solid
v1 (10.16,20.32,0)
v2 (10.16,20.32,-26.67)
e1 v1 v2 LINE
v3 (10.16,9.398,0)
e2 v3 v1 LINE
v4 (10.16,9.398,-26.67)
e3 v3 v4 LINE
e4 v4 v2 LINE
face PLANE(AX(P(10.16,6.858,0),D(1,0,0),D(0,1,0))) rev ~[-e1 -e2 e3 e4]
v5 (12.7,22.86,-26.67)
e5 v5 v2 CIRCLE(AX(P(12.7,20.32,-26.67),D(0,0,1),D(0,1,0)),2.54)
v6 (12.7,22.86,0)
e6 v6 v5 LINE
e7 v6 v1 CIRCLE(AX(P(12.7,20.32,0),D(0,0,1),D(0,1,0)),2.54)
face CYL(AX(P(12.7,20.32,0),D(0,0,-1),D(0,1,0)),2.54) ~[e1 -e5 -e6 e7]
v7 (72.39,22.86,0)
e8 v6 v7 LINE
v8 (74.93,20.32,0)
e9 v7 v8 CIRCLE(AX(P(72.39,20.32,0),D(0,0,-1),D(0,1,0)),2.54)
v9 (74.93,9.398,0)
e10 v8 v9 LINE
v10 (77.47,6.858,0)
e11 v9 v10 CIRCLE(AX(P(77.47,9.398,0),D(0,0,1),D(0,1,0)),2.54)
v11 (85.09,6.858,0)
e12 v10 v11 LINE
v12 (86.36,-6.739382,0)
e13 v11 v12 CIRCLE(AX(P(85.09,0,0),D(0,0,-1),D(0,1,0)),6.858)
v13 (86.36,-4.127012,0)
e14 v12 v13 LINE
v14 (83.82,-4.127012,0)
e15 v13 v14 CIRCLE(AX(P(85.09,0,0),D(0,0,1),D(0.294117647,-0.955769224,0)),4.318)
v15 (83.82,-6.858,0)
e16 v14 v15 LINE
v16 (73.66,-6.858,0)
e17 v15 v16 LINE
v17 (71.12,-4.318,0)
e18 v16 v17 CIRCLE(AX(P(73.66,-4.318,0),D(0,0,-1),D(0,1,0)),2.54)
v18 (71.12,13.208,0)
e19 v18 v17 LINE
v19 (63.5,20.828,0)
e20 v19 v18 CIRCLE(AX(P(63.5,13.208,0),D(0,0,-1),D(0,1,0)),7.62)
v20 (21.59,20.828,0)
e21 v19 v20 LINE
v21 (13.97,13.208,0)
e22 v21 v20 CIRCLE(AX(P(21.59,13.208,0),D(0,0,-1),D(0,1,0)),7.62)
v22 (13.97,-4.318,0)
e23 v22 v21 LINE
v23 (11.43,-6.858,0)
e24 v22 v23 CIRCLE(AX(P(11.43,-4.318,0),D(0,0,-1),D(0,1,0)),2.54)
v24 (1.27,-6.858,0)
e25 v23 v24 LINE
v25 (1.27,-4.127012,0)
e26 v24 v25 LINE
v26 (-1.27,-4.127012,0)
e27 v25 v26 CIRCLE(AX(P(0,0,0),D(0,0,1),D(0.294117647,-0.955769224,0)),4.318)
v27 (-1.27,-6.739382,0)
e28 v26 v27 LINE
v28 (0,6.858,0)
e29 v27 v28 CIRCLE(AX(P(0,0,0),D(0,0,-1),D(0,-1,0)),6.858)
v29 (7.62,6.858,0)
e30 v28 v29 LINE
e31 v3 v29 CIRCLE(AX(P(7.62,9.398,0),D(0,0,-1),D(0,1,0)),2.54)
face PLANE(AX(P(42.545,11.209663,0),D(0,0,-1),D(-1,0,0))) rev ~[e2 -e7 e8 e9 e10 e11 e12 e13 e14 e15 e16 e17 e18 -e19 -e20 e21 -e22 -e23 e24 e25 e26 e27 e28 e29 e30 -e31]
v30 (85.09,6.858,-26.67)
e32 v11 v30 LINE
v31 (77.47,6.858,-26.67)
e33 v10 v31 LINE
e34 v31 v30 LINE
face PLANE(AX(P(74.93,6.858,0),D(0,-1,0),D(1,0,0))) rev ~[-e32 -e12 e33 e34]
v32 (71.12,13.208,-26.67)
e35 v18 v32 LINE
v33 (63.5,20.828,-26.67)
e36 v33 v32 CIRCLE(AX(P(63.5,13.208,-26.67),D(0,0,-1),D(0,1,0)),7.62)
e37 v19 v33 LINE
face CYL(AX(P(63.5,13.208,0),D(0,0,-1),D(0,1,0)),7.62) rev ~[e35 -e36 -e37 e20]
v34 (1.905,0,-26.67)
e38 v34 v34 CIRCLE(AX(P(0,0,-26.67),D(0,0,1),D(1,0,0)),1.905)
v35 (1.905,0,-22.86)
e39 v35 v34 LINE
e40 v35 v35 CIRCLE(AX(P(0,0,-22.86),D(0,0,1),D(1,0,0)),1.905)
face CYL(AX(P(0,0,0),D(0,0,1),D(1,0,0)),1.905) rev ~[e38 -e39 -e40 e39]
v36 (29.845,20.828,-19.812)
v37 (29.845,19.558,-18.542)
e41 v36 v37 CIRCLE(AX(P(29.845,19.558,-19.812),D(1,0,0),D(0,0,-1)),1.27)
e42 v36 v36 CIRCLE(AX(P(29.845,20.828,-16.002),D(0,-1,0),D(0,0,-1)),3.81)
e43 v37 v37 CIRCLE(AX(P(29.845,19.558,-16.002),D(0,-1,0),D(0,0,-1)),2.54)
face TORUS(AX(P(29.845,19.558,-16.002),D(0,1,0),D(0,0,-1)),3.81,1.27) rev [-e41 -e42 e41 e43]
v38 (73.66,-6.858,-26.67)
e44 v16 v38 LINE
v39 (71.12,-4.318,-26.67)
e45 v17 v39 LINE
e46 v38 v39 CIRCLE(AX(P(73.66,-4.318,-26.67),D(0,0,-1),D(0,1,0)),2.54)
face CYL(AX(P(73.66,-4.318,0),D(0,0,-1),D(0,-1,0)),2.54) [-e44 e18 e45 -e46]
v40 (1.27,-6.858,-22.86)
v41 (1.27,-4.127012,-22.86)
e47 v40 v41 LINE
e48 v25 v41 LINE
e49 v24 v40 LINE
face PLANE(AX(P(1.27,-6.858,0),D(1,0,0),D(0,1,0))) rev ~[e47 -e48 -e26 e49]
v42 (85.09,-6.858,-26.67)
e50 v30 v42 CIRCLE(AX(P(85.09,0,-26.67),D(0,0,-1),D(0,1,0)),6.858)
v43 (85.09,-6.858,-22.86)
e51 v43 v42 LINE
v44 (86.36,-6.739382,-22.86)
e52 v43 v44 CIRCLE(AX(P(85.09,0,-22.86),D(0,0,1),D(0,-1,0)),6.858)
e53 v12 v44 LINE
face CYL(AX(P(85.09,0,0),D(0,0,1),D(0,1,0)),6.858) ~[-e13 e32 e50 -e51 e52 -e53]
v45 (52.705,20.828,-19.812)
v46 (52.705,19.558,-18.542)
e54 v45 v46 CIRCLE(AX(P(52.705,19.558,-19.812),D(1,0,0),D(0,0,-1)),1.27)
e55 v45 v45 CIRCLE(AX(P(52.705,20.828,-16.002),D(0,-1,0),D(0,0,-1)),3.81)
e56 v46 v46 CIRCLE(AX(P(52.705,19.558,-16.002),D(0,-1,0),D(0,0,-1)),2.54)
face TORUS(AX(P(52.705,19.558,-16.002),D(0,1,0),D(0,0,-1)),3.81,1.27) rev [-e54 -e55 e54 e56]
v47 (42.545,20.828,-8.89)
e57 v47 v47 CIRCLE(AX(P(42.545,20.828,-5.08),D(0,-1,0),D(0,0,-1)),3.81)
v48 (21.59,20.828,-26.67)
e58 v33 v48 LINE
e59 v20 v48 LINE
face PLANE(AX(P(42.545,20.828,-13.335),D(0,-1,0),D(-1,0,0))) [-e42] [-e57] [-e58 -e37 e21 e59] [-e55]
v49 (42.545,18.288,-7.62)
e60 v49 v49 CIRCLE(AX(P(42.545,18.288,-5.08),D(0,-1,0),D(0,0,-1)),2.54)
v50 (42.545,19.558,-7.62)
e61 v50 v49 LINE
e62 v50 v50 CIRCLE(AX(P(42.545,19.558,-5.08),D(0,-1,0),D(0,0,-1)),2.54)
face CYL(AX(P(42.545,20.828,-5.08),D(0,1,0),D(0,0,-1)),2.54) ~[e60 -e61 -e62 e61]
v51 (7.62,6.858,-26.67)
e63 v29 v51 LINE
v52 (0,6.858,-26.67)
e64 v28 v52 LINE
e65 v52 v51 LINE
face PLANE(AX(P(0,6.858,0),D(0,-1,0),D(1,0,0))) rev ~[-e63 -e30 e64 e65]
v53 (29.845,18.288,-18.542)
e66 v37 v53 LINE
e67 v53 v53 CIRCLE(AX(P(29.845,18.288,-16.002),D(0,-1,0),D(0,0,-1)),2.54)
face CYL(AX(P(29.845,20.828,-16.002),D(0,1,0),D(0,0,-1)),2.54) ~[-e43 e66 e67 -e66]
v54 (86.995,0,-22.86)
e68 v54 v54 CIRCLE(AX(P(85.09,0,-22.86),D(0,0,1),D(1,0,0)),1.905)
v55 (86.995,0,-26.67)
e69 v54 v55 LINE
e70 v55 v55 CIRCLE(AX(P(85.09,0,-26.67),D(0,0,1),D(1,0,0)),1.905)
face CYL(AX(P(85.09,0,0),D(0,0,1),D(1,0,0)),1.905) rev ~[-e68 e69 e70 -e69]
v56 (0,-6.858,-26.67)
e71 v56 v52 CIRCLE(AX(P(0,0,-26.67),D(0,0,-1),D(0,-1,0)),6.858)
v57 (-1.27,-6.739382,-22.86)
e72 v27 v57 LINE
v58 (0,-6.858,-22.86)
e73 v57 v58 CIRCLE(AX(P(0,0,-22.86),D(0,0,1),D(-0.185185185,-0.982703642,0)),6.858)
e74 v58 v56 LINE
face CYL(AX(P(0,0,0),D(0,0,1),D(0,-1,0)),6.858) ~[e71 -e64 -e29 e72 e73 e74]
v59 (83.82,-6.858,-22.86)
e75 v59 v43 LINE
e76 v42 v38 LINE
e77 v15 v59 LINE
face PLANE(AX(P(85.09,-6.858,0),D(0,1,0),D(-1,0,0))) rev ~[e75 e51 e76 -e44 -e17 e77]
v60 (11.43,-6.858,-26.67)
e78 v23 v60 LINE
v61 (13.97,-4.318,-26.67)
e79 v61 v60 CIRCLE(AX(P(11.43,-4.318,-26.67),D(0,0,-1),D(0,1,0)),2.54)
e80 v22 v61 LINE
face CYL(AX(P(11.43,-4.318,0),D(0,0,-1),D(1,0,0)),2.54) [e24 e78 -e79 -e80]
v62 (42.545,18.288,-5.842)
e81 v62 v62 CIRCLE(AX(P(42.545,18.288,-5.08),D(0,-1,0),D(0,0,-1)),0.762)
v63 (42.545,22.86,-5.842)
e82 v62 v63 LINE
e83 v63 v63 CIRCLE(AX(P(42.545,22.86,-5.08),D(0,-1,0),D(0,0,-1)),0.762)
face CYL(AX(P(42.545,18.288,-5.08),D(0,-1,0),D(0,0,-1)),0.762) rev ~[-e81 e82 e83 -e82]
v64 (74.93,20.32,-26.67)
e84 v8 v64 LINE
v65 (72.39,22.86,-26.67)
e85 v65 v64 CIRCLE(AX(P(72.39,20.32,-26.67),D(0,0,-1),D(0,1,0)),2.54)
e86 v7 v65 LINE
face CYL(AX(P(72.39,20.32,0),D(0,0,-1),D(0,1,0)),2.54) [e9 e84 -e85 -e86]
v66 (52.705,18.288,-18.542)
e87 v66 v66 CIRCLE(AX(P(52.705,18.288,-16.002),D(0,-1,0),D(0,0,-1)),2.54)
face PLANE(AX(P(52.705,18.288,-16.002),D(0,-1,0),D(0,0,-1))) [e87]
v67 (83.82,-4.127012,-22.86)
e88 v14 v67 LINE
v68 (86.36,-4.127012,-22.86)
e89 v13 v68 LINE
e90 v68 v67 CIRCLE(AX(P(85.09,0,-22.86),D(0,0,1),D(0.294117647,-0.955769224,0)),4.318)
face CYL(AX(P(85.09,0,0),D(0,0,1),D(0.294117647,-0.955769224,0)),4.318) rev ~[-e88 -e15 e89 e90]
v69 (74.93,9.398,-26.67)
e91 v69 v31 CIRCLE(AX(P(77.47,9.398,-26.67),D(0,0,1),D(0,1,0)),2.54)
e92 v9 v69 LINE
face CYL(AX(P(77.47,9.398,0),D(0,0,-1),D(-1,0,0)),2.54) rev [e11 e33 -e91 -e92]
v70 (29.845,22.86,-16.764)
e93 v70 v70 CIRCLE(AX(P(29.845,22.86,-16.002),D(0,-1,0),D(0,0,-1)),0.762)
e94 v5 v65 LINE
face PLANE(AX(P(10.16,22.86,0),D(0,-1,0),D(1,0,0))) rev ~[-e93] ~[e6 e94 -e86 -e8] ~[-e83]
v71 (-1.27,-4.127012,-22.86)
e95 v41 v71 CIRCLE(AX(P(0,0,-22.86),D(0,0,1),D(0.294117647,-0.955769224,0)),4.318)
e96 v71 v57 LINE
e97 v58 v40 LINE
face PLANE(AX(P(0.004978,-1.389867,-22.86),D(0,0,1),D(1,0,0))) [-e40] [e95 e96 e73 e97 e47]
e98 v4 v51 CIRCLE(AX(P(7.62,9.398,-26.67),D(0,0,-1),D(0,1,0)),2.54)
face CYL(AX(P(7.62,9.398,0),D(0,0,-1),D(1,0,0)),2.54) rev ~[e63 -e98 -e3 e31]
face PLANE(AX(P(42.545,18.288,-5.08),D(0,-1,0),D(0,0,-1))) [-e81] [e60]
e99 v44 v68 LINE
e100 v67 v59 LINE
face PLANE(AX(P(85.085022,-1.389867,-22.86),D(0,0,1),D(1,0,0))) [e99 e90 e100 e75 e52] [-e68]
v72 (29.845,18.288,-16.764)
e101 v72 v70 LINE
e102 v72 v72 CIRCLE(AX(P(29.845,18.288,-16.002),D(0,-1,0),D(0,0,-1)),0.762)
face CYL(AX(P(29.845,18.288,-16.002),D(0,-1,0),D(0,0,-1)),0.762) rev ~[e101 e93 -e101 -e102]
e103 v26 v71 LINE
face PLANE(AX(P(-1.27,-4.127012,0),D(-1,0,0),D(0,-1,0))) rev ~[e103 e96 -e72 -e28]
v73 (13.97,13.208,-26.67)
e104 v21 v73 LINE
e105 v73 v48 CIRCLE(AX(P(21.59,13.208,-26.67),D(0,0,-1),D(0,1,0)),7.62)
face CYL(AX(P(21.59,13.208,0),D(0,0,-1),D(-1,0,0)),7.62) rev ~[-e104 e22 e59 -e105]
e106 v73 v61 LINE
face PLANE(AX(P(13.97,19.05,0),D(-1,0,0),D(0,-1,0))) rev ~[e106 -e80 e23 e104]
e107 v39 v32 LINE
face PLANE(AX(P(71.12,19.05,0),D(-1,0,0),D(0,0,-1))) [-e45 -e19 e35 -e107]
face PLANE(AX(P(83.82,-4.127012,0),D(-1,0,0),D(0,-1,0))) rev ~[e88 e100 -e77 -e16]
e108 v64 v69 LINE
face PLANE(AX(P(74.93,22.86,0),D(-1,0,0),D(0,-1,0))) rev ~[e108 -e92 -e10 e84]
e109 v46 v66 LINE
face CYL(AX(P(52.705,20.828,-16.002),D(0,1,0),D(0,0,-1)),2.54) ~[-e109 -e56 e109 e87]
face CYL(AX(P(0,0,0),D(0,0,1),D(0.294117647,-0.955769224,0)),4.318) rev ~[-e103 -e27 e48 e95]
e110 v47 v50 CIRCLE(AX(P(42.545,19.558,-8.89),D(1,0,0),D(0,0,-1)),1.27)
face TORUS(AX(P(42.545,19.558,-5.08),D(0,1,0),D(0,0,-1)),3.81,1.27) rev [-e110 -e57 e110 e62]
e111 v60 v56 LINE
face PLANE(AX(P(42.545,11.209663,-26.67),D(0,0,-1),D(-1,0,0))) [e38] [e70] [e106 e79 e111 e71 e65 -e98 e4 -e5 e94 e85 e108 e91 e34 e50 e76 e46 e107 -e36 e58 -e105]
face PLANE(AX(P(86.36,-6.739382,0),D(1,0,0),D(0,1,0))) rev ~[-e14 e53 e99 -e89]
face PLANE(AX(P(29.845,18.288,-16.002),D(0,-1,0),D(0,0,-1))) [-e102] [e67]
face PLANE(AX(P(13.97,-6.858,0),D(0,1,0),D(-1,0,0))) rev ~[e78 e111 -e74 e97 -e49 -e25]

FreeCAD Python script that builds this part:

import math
import FreeCAD as App
import Part
import Sketcher
Q = App.Units.Quantity


def edges_at(feature, points):
    """Names of the edges that pass closest to the given points."""
    edges = feature.Shape.Edges
    near = lambda p: min(range(len(edges)), key=lambda i: edges[i].distToShape(Part.Vertex(*p))[0])
    return sorted({f"Edge{near(p) + 1}" for p in points})


def add_polygon(sketch, points):
    """Adds a closed chain of lines whose ends are joined by coincident constraints."""
    first, n = sketch.GeometryCount, len(points)
    for a, b in zip(points, points[1:] + points[:1]):
        sketch.addGeometry(Part.LineSegment(App.Vector(*a, 0), App.Vector(*b, 0)), False)
    for i in range(n):
        sketch.addConstraint(Sketcher.Constraint("Coincident", first + i, 2, first + (i + 1) % n, 1))

doc = App.newDocument("Part")
body = doc.addObject("PartDesign::Body", "Body")

sketch1 = body.newObject("Sketcher::SketchObject", "Sketch")
sketch1.AttachmentSupport = (doc.getObject("XY_Plane"), [""])
sketch1.MapMode = "FlatFace"
sketch1.addGeometry(Part.LineSegment(App.Vector(74.93, 22.86, 0), App.Vector(10.16, 22.86, 0)), False)
sketch1.addGeometry(Part.LineSegment(App.Vector(10.16, 22.86, 0), App.Vector(10.16, 6.858, 0)), False)
sketch1.addGeometry(Part.LineSegment(App.Vector(10.16, 6.858, 0), App.Vector(0, 6.858, 0)), False)
sketch1.addGeometry(Part.ArcOfCircle(Part.Circle(App.Vector(0, 0, 0), App.Vector(0, 0, 1), 6.858), math.radians(90), math.radians(270)), False)
sketch1.addGeometry(Part.LineSegment(App.Vector(0, -6.858, 0), App.Vector(13.97, -6.858, 0)), False)
sketch1.addGeometry(Part.LineSegment(App.Vector(13.97, -6.858, 0), App.Vector(13.97, 19.05, 0)), False)
sketch1.addGeometry(Part.LineSegment(App.Vector(13.97, 19.05, 0), App.Vector(71.12, 19.05, 0)), False)
sketch1.addGeometry(Part.LineSegment(App.Vector(71.12, 19.05, 0), App.Vector(71.12, -6.858, 0)), False)
sketch1.addGeometry(Part.LineSegment(App.Vector(71.12, -6.858, 0), App.Vector(85.09, -6.858, 0)), False)
sketch1.addGeometry(Part.ArcOfCircle(Part.Circle(App.Vector(85.09, 0, 0), App.Vector(0, 0, 1), 6.858), math.radians(-90), math.radians(90)), False)
sketch1.addGeometry(Part.LineSegment(App.Vector(85.09, 6.858, 0), App.Vector(74.93, 6.858, 0)), False)
sketch1.addGeometry(Part.LineSegment(App.Vector(74.93, 6.858, 0), App.Vector(74.93, 22.86, 0)), False)
sketch1.addGeometry(Part.Circle(App.Vector(85.09, 0, 0), App.Vector(0, 0, 1), 1.905), False)
sketch1.addGeometry(Part.Circle(App.Vector(0, 0, 0), App.Vector(0, 0, 1), 1.905), False)
sketch1.addConstraint(Sketcher.Constraint("Coincident", 0, 2, 1, 1))
sketch1.addConstraint(Sketcher.Constraint("Coincident", 1, 2, 2, 1))
sketch1.addConstraint(Sketcher.Constraint("Tangent", 2, 2, 3, 1))
sketch1.addConstraint(Sketcher.Constraint("Tangent", 3, 2, 4, 1))
sketch1.addConstraint(Sketcher.Constraint("Coincident", 4, 2, 5, 1))
sketch1.addConstraint(Sketcher.Constraint("Coincident", 5, 2, 6, 1))
sketch1.addConstraint(Sketcher.Constraint("Coincident", 6, 2, 7, 1))
sketch1.addConstraint(Sketcher.Constraint("Coincident", 7, 2, 8, 1))
sketch1.addConstraint(Sketcher.Constraint("Tangent", 8, 2, 9, 1))
sketch1.addConstraint(Sketcher.Constraint("Tangent", 9, 2, 10, 1))
sketch1.addConstraint(Sketcher.Constraint("Coincident", 10, 2, 11, 1))
sketch1.addConstraint(Sketcher.Constraint("Coincident", 11, 2, 0, 1))
sketch1.addConstraint(Sketcher.Constraint("Horizontal", 0))
sketch1.addConstraint(Sketcher.Constraint("Vertical", 1))
sketch1.addConstraint(Sketcher.Constraint("Horizontal", 2))
sketch1.addConstraint(Sketcher.Constraint("Horizontal", 4))
sketch1.addConstraint(Sketcher.Constraint("Vertical", 5))
sketch1.addConstraint(Sketcher.Constraint("Horizontal", 6))
sketch1.addConstraint(Sketcher.Constraint("Vertical", 7))
sketch1.addConstraint(Sketcher.Constraint("Horizontal", 8))
sketch1.addConstraint(Sketcher.Constraint("Horizontal", 10))
sketch1.addConstraint(Sketcher.Constraint("Vertical", 11))
sketch1.addConstraint(Sketcher.Constraint("Coincident", 3, 3, -1, 1))
sketch1.addConstraint(Sketcher.Constraint("Coincident", 13, 3, -1, 1))
sketch1.addConstraint(Sketcher.Constraint("Coincident", 12, 3, 9, 3))
sketch1.addConstraint(Sketcher.Constraint("Equal", 3, 9))
sketch1.addConstraint(Sketcher.Constraint("Equal", 12, 13))
sketch1.addConstraint(Sketcher.Constraint("PointOnObject", 9, 3, -1))
sketch1.addConstraint(Sketcher.Constraint("Equal", 4, 8))
sketch1.addConstraint(Sketcher.Constraint("Equal", 2, 10))
sketch1.addConstraint(Sketcher.Constraint("Diameter", 12, Q("0.15 in")))
sketch1.addConstraint(Sketcher.Constraint("Radius", 3, Q("0.27 in")))
sketch1.addConstraint(Sketcher.Constraint("DistanceX", 2, 2, 2, 1, Q("0.4 in")))
sketch1.addConstraint(Sketcher.Constraint("DistanceX", 0, 2, 0, 1, Q("2.55 in")))
sketch1.addConstraint(Sketcher.Constraint("DistanceX", 4, 1, 4, 2, Q("0.55 in")))
sketch1.addConstraint(Sketcher.Constraint("DistanceY", 1, 2, 1, 1, Q("0.63 in")))
sketch1.addConstraint(Sketcher.Constraint("DistanceY", 5, 1, 5, 2, Q("1.02 in")))
pad1 = body.newObject("PartDesign::Pad", "Pad")
pad1.Profile = sketch1
pad1.Length = Q("1.05 in")
pad1.Reversed = True

sketch2 = body.newObject("Sketcher::SketchObject", "Sketch001")
sketch2.AttachmentSupport = (doc.getObject("XY_Plane"), [""])
sketch2.MapMode = "FlatFace"
sketch2.addGeometry(Part.LineSegment(App.Vector(83.82, -4.127012, 0), App.Vector(83.82, -6.858, 0)), False)
sketch2.addGeometry(Part.LineSegment(App.Vector(83.82, -6.858, 0), App.Vector(85.09, -6.858, 0)), False)
sketch2.addGeometry(Part.ArcOfCircle(Part.Circle(App.Vector(85.09, 0, 0), App.Vector(0, 0, 1), 6.858), math.radians(-90), math.radians(-79.328071)), False)
sketch2.addGeometry(Part.LineSegment(App.Vector(86.36, -6.739382, 0), App.Vector(86.36, -4.127012, 0)), False)
sketch2.addGeometry(Part.ArcOfCircle(Part.Circle(App.Vector(85.09, 0, 0), App.Vector(0, 0, 1), 4.318), math.radians(-72.895365), math.radians(252.895365)), False)
sketch2.addGeometry(Part.LineSegment(App.Vector(-1.27, -4.127012, 0), App.Vector(-1.27, -6.739382, 0)), False)
sketch2.addGeometry(Part.ArcOfCircle(Part.Circle(App.Vector(0, 0, 0), App.Vector(0, 0, 1), 6.858), math.radians(-100.671929), math.radians(-90)), False)
sketch2.addGeometry(Part.LineSegment(App.Vector(0, -6.858, 0), App.Vector(1.27, -6.858, 0)), False)
sketch2.addGeometry(Part.LineSegment(App.Vector(1.27, -6.858, 0), App.Vector(1.27, -4.127012, 0)), False)
sketch2.addGeometry(Part.ArcOfCircle(Part.Circle(App.Vector(0, 0, 0), App.Vector(0, 0, 1), 4.318), math.radians(-72.895365), math.radians(252.895365)), False)
sketch2.addConstraint(Sketcher.Constraint("Coincident", 0, 2, 1, 1))
sketch2.addConstraint(Sketcher.Constraint("Tangent", 1, 2, 2, 1))
sketch2.addConstraint(Sketcher.Constraint("Coincident", 2, 2, 3, 1))
sketch2.addConstraint(Sketcher.Constraint("Coincident", 3, 2, 4, 1))
sketch2.addConstraint(Sketcher.Constraint("Coincident", 4, 2, 0, 1))
sketch2.addConstraint(Sketcher.Constraint("Coincident", 5, 2, 6, 1))
sketch2.addConstraint(Sketcher.Constraint("Tangent", 6, 2, 7, 1))
sketch2.addConstraint(Sketcher.Constraint("Coincident", 7, 2, 8, 1))
sketch2.addConstraint(Sketcher.Constraint("Coincident", 8, 2, 9, 1))
sketch2.addConstraint(Sketcher.Constraint("Coincident", 9, 2, 5, 1))
sketch2.addConstraint(Sketcher.Constraint("Vertical", 0))
sketch2.addConstraint(Sketcher.Constraint("Horizontal", 1))
sketch2.addConstraint(Sketcher.Constraint("Vertical", 3))
sketch2.addConstraint(Sketcher.Constraint("Vertical", 5))
sketch2.addConstraint(Sketcher.Constraint("Horizontal", 7))
sketch2.addConstraint(Sketcher.Constraint("Vertical", 8))
sketch2.addConstraint(Sketcher.Constraint("Coincident", 6, 3, -1, 1))
sketch2.addConstraint(Sketcher.Constraint("Coincident", 9, 3, -1, 1))
sketch2.addConstraint(Sketcher.Constraint("Coincident", 4, 3, 2, 3))
sketch2.addConstraint(Sketcher.Constraint("Equal", 2, 6))
sketch2.addConstraint(Sketcher.Constraint("Equal", 4, 9))
sketch2.addConstraint(Sketcher.Constraint("PointOnObject", 2, 3, -1))
sketch2.addConstraint(Sketcher.Constraint("Horizontal", 3, 2, 4, 2))
sketch2.addConstraint(Sketcher.Constraint("Horizontal", 2, 2, 5, 2))
sketch2.addConstraint(Sketcher.Constraint("Horizontal", 4, 2, 8, 2))
sketch2.addConstraint(Sketcher.Constraint("Radius", 2, Q("0.27 in")))
sketch2.addConstraint(Sketcher.Constraint("Radius", 4, Q("0.17 in")))
sketch2.addConstraint(Sketcher.Constraint("DistanceX", 1, 1, 1, 2, Q("0.05 in")))
sketch2.addConstraint(Sketcher.Constraint("DistanceX", -1, 1, 0, 2, Q("3.3 in")))
pocket1 = body.newObject("PartDesign::Pocket", "Pocket")
pocket1.Profile = sketch2
pocket1.Length = Q("0.9 in")

sketch3 = body.newObject("Sketcher::SketchObject", "Sketch002")
sketch3.AttachmentSupport = (doc.getObject("XZ_Plane"), [""])
sketch3.MapMode = "FlatFace"
sketch3.AttachmentOffset = App.Placement(App.Vector(0, 0, -0.75 * 25.4), App.Rotation())
add_polygon(sketch3, [(71.12, -26.67), (71.12, 0), (13.97, 0), (13.97, -26.67)])
sketch3.addConstraint(Sketcher.Constraint("Vertical", 0))
sketch3.addConstraint(Sketcher.Constraint("Horizontal", 1))
sketch3.addConstraint(Sketcher.Constraint("Vertical", 2))
sketch3.addConstraint(Sketcher.Constraint("Horizontal", 3))
sketch3.addConstraint(Sketcher.Constraint("PointOnObject", 0, 2, -1))
sketch3.addConstraint(Sketcher.Constraint("DistanceX", 1, 2, 1, 1, Q("2.25 in")))
sketch3.addConstraint(Sketcher.Constraint("DistanceY", 0, 1, 0, 2, Q("1.05 in")))
sketch3.addConstraint(Sketcher.Constraint("DistanceX", -1, 1, 0, 2, Q("2.8 in")))
pocket2 = body.newObject("PartDesign::Pocket", "Pocket001")
pocket2.Profile = sketch3
pocket2.Length = Q("0.07 in")

sketch4 = body.newObject("Sketcher::SketchObject", "Sketch003")
sketch4.AttachmentSupport = (doc.getObject("XZ_Plane"), [""])
sketch4.MapMode = "FlatFace"
sketch4.AttachmentOffset = App.Placement(App.Vector(0, 0, -0.82 * 25.4), App.Rotation())
sketch4.addGeometry(Part.Circle(App.Vector(42.545, -5.08, 0), App.Vector(0, 0, 1), 2.54), False)
sketch4.addGeometry(Part.Circle(App.Vector(29.845, -16.002, 0), App.Vector(0, 0, 1), 2.54), False)
sketch4.addConstraint(Sketcher.Constraint("Equal", 0, 1))
sketch4.addConstraint(Sketcher.Constraint("Diameter", 0, Q("0.2 in")))
sketch4.addConstraint(Sketcher.Constraint("DistanceY", 0, 3, -1, 1, Q("0.2 in")))
sketch4.addConstraint(Sketcher.Constraint("DistanceX", 1, 3, 0, 3, Q("0.5 in")))
sketch4.addConstraint(Sketcher.Constraint("DistanceY", 1, 3, -1, 1, Q("0.63 in")))
sketch4.addConstraint(Sketcher.Constraint("DistanceX", -1, 1, 0, 3, Q("1.675 in")))
pad2 = body.newObject("PartDesign::Pad", "Pad001")
pad2.Profile = sketch4
pad2.Length = Q("0.1 in")

sketch5 = body.newObject("Sketcher::SketchObject", "Sketch004")
sketch5.AttachmentSupport = (doc.getObject("XZ_Plane"), [""])
sketch5.MapMode = "FlatFace"
sketch5.AttachmentOffset = App.Placement(App.Vector(0, 0, -0.72 * 25.4), App.Rotation())
sketch5.addGeometry(Part.Circle(App.Vector(42.545, -5.08, 0), App.Vector(0, 0, 1), 0.762), False)
sketch5.addGeometry(Part.Circle(App.Vector(29.845, -16.002, 0), App.Vector(0, 0, 1), 0.762), False)
sketch5.addConstraint(Sketcher.Constraint("Equal", 0, 1))
sketch5.addConstraint(Sketcher.Constraint("Diameter", 0, Q("0.06 in")))
sketch5.addConstraint(Sketcher.Constraint("DistanceY", 0, 3, -1, 1, Q("0.2 in")))
sketch5.addConstraint(Sketcher.Constraint("DistanceX", 1, 3, 0, 3, Q("0.5 in")))
sketch5.addConstraint(Sketcher.Constraint("DistanceY", 1, 3, -1, 1, Q("0.63 in")))
sketch5.addConstraint(Sketcher.Constraint("DistanceX", -1, 1, 0, 3, Q("1.675 in")))
pocket3 = body.newObject("PartDesign::Pocket", "Pocket002")
pocket3.Profile = sketch5
pocket3.Length = Q("0.3 in")
doc.recompute()

fillet = body.newObject("PartDesign::Fillet", "Fillet")
fillet.Base = (pocket3, edges_at(pocket3, [
    (10.16, 6.858, -13.335),
    (10.16, 22.86, -13.335),
    (74.93, 22.86, -13.335),
    (74.93, 6.858, -13.335),
    (71.12, -6.858, -13.335),
    (13.97, -6.858, -13.335),
]))
fillet.Radius = Q("0.1 in")
doc.recompute()

fillet2 = body.newObject("PartDesign::Fillet", "Fillet001")
fillet2.Base = (fillet, edges_at(fillet, [(71.12, 20.828, -13.335), (13.97, 20.828, -13.335)]))
fillet2.Radius = Q("0.3 in")

sketch6 = body.newObject("Sketcher::SketchObject", "Sketch005")
sketch6.AttachmentSupport = (doc.getObject("XZ_Plane"), [""])
sketch6.MapMode = "FlatFace"
sketch6.AttachmentOffset = App.Placement(App.Vector(0, 0, -0.82 * 25.4), App.Rotation())
sketch6.addGeometry(Part.Circle(App.Vector(52.705, -16.002, 0), App.Vector(0, 0, 1), 2.54), False)
sketch6.addConstraint(Sketcher.Constraint("Diameter", 0, Q("0.2 in")))
sketch6.addConstraint(Sketcher.Constraint("DistanceY", 0, 3, -1, 1, Q("0.63 in")))
sketch6.addConstraint(Sketcher.Constraint("DistanceX", -1, 1, 0, 3, Q("2.075 in")))
pad3 = body.newObject("PartDesign::Pad", "Pad002")
pad3.Profile = sketch6
pad3.Length = Q("0.1 in")
doc.recompute()

fillet3 = body.newObject("PartDesign::Fillet", "Fillet002")
fillet3.Base = (pad3, edges_at(pad3, [(42.545, 20.828, -2.54), (29.845, 20.828, -13.462), (52.705, 20.828, -13.462)]))
fillet3.Radius = Q("0.05 in")

doc.recompute()
